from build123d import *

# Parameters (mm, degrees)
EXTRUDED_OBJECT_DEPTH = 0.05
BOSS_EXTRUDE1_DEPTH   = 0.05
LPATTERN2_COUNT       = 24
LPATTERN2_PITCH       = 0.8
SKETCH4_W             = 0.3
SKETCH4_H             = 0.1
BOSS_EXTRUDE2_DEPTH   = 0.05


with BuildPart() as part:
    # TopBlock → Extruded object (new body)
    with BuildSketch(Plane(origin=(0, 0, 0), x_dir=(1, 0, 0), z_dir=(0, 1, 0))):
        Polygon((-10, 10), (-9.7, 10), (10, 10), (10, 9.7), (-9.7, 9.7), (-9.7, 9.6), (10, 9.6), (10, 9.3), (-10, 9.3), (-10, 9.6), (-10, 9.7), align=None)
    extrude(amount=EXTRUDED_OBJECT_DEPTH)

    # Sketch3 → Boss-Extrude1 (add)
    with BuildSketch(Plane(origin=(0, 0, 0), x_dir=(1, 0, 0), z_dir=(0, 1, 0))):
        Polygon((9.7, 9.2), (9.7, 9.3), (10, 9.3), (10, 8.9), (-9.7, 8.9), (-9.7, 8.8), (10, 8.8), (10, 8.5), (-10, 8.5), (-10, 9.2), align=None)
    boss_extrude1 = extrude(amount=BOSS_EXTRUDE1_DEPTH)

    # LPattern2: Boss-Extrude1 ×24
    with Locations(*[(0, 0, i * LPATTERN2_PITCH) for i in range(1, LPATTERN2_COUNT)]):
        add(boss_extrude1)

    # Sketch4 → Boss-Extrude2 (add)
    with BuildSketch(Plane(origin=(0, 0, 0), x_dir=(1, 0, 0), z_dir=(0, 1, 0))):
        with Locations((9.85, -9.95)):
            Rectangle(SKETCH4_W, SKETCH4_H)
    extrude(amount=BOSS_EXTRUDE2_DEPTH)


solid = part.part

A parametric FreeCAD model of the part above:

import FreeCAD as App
import Part
import Sketcher
Q = App.Units.Quantity


def add_polygon(sketch, points):
    """Adds a closed chain of lines whose ends are joined by coincident constraints."""
    first, n = sketch.GeometryCount, len(points)
    for a, b in zip(points, points[1:] + points[:1]):
        sketch.addGeometry(Part.LineSegment(App.Vector(*a, 0), App.Vector(*b, 0)), False)
    for i in range(n):
        sketch.addConstraint(Sketcher.Constraint("Coincident", first + i, 2, first + (i + 1) % n, 1))

doc = App.newDocument("Part")
body = doc.addObject("PartDesign::Body", "Body")

# Sketch on XZ plane
sketch1 = body.newObject("Sketcher::SketchObject", "Sketch")
sketch1.AttachmentSupport = (doc.getObject("XZ_Plane"), [""])
sketch1.MapMode = "FlatFace"
add_polygon(sketch1, [(10, -10), (-10, -10), (-10, -9.3), (10, -9.3), (10, -9.6), (-9.7, -9.6), (-9.7, -9.7), (10, -9.7)])  # lines 0-7
sketch1.addConstraint([
    Sketcher.Constraint("Horizontal", 0),
    Sketcher.Constraint("Vertical", 1),
    Sketcher.Constraint("Horizontal", 2),
    Sketcher.Constraint("Vertical", 3),
    Sketcher.Constraint("Horizontal", 4),
    Sketcher.Constraint("Vertical", 5),
    Sketcher.Constraint("Horizontal", 6),
    Sketcher.Constraint("Vertical", 7),
    Sketcher.Constraint("Vertical", 3, 2, 6, 2),
    Sketcher.Constraint("Equal", 3, 7),
    Sketcher.Constraint("DistanceX", 0, 2, 0, 1, Q("20 mm")),
    Sketcher.Constraint("DistanceX", 4, 2, 4, 1, Q("19.7 mm")),
    Sketcher.Constraint("DistanceY", 1, 1, 1, 2, Q("0.7 mm")),
    Sketcher.Constraint("DistanceY", 3, 2, 3, 1, Q("0.3 mm")),
    Sketcher.Constraint("DistanceX", 0, 2, -1, 1, Q("10 mm")),
    Sketcher.Constraint("DistanceY", 0, 2, -1, 1, Q("10 mm")),
])
pad1 = body.newObject("PartDesign::Pad", "Pad")
pad1.Profile = sketch1
pad1.Length = 0.05
pad1.Reversed = True

# Sketch on XZ plane
sketch2 = body.newObject("Sketcher::SketchObject", "Sketch001")
sketch2.AttachmentSupport = (doc.getObject("XZ_Plane"), [""])
sketch2.MapMode = "FlatFace"
add_polygon(sketch2, [(9.7, -9.3), (9.7, -9.2), (-10, -9.2), (-10, -8.5), (10, -8.5), (10, -8.8), (-9.7, -8.8), (-9.7, -8.9), (10, -8.9), (10, -9.3)])  # lines 0-9
sketch2.addConstraint([
    Sketcher.Constraint("Vertical", 0),
    Sketcher.Constraint("Horizontal", 1),
    Sketcher.Constraint("Vertical", 2),
    Sketcher.Constraint("Horizontal", 3),
    Sketcher.Constraint("Vertical", 4),
    Sketcher.Constraint("Horizontal", 5),
    Sketcher.Constraint("Vertical", 6),
    Sketcher.Constraint("Horizontal", 7),
    Sketcher.Constraint("Vertical", 8),
    Sketcher.Constraint("Horizontal", 9),
    Sketcher.Constraint("Vertical", 4, 2, 7, 2),
    Sketcher.Constraint("Equal", 1, 5),
    Sketcher.Constraint("Equal", 9, 4),
    Sketcher.Constraint("Equal", 0, 6),
    Sketcher.Constraint("DistanceX", 3, 1, 3, 2, Q("20 mm")),
    Sketcher.Constraint("DistanceX", 1, 2, 1, 1, Q("19.7 mm")),
    Sketcher.Constraint("DistanceY", 0, 1, 0, 2, Q("0.1 mm")),
    Sketcher.Constraint("DistanceY", 2, 1, 2, 2, Q("0.7 mm")),
    Sketcher.Constraint("DistanceX", 1, 2, -1, 1, Q("10 mm")),
    Sketcher.Constraint("DistanceY", 0, 2, -1, 1, Q("9.2 mm")),
])
pad2 = body.newObject("PartDesign::Pad", "Pad001")
pad2.Profile = sketch2
pad2.Length = 0.05
pad2.Reversed = True
doc.recompute()

linearpattern = body.newObject("PartDesign::LinearPattern", "LinearPattern")
linearpattern.Originals = [pad2]
linearpattern.Direction = (doc.getObject("Z_Axis"), [""])
linearpattern.Mode = "offset"
linearpattern.Offset = 0.8
linearpattern.Occurrences = 24
body.Tip = linearpattern

# Sketch on XZ plane
sketch3 = body.newObject("Sketcher::SketchObject", "Sketch002")
sketch3.AttachmentSupport = (doc.getObject("XZ_Plane"), [""])
sketch3.MapMode = "FlatFace"
add_polygon(sketch3, [(9.7, 9.9), (9.7, 10), (10, 10), (10, 9.9)])  # lines 0-3
sketch3.addConstraint([
    Sketcher.Constraint("Vertical", 0),
    Sketcher.Constraint("Horizontal", 1),
    Sketcher.Constraint("Vertical", 2),
    Sketcher.Constraint("Horizontal", 3),
    Sketcher.Constraint("DistanceX", 1, 1, 1, 2, Q("0.3 mm")),
    Sketcher.Constraint("DistanceY", 0, 1, 0, 2, Q("0.1 mm")),
    Sketcher.Constraint("DistanceY", -1, 1, 0, 2, Q("10 mm")),
    Sketcher.Constraint("DistanceX", -1, 1, 1, 2, Q("10 mm")),
])
pad3 = body.newObject("PartDesign::Pad", "Pad002")
pad3.Profile = sketch3
pad3.Length = 0.05
pad3.Reversed = True

doc.recompute()
